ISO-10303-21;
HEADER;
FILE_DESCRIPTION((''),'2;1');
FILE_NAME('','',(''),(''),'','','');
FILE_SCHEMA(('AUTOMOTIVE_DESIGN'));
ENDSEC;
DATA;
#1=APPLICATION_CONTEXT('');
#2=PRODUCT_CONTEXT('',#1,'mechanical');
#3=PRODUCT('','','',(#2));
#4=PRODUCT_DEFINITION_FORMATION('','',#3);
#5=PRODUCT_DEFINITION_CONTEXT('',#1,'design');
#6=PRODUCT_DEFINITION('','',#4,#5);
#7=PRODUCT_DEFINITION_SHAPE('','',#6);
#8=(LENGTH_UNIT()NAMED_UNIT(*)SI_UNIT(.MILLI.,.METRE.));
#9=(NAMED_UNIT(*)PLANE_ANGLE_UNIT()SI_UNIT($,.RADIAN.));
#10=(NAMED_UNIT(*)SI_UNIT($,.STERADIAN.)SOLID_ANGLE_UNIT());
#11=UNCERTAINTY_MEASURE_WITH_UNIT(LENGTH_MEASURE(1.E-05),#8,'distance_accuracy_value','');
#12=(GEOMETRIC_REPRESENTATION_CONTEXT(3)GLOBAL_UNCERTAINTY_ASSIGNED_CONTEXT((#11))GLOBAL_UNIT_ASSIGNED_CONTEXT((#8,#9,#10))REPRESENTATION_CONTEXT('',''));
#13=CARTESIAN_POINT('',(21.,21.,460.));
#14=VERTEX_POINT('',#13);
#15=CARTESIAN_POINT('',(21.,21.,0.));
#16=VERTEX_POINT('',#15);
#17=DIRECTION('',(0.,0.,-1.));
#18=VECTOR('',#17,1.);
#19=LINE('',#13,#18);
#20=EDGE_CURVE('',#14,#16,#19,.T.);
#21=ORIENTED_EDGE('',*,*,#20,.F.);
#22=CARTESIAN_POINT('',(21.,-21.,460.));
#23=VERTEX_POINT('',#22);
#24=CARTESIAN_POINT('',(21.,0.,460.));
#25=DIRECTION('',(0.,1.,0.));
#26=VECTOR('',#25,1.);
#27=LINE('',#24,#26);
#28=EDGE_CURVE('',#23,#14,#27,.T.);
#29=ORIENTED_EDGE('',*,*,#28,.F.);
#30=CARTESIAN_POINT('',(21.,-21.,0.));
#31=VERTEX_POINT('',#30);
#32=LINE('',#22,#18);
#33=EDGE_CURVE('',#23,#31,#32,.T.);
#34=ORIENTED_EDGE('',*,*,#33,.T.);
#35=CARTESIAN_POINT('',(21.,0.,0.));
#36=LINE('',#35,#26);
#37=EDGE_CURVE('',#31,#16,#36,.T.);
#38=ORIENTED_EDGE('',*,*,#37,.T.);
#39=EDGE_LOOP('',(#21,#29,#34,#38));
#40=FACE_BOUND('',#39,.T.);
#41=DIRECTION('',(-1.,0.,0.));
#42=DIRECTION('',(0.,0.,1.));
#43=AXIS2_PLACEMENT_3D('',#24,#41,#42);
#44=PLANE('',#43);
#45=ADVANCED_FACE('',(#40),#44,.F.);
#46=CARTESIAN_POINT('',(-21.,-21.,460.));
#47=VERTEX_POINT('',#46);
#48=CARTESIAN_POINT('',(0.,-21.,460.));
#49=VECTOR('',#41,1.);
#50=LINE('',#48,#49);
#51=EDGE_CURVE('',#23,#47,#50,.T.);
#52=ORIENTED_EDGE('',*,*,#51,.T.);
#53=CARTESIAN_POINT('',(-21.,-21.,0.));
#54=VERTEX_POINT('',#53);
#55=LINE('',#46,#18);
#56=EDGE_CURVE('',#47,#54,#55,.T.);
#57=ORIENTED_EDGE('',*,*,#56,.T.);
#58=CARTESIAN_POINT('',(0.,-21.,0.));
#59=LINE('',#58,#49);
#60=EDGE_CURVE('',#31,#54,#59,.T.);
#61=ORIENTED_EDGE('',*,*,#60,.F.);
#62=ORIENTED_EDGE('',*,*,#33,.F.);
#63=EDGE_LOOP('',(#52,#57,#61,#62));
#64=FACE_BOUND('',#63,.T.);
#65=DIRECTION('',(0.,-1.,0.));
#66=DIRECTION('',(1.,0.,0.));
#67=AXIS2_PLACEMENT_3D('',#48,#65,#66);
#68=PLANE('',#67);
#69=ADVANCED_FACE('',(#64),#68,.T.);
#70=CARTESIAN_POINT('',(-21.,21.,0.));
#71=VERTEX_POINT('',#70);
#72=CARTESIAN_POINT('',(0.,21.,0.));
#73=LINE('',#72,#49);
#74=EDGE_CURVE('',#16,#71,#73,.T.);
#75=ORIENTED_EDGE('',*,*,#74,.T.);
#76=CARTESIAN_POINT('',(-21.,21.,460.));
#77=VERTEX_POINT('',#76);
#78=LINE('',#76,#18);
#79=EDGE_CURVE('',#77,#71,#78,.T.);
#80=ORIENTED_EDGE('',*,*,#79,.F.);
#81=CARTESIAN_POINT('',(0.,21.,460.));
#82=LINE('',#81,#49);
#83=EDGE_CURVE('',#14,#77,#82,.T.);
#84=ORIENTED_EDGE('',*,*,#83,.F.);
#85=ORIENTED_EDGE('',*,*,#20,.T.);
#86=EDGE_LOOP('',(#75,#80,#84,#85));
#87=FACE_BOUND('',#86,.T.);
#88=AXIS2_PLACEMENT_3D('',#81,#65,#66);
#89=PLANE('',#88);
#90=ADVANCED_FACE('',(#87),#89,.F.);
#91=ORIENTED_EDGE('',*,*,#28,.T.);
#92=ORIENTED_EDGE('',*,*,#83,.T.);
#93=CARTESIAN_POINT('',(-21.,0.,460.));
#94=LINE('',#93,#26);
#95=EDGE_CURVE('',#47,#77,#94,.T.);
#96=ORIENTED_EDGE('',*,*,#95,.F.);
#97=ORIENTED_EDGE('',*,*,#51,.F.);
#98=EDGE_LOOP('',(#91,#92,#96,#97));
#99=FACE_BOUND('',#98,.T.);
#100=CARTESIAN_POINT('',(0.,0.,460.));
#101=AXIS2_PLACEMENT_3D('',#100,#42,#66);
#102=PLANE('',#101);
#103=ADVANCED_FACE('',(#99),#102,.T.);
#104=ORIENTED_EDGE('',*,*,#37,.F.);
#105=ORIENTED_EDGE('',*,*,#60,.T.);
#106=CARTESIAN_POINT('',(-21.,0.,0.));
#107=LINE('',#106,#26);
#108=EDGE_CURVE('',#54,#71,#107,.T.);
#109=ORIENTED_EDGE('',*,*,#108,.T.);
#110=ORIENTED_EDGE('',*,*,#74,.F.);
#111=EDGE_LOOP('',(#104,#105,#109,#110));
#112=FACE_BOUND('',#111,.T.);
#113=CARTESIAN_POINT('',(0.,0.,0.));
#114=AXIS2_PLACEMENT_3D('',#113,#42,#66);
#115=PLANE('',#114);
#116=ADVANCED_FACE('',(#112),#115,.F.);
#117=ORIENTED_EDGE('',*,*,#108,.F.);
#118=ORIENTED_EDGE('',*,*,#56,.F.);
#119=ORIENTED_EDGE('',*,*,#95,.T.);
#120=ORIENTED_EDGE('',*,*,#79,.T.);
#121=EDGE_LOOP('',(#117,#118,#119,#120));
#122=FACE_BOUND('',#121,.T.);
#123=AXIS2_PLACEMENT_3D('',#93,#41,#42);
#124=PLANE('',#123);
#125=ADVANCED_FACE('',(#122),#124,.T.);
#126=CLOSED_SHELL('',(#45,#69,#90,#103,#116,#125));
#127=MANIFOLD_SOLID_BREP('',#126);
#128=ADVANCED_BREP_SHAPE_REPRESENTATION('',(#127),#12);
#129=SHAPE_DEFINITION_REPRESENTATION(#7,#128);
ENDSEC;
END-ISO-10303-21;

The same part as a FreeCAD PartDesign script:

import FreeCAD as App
import Part
import Sketcher
Q = App.Units.Quantity

doc = App.newDocument("Part")
body = doc.addObject("PartDesign::Body", "Body")

sketch1 = body.newObject("Sketcher::SketchObject", "Sketch")
sketch1.AttachmentSupport = (doc.getObject("XY_Plane"), [""])
sketch1.MapMode = "FlatFace"
sketch1.addGeometry(Part.LineSegment(App.Vector(-21, 21, 0), App.Vector(-21, -21, 0)), False)
sketch1.addGeometry(Part.LineSegment(App.Vector(-21, -21, 0), App.Vector(21, -21, 0)), False)
sketch1.addGeometry(Part.LineSegment(App.Vector(21, -21, 0), App.Vector(21, 21, 0)), False)
sketch1.addGeometry(Part.LineSegment(App.Vector(21, 21, 0), App.Vector(-21, 21, 0)), False)
sketch1.addConstraint(Sketcher.Constraint("Coincident", 0, 2, 1, 1))
sketch1.addConstraint(Sketcher.Constraint("Coincident", 1, 2, 2, 1))
sketch1.addConstraint(Sketcher.Constraint("Coincident", 2, 2, 3, 1))
sketch1.addConstraint(Sketcher.Constraint("Coincident", 3, 2, 0, 1))
sketch1.addConstraint(Sketcher.Constraint("Vertical", 0))
sketch1.addConstraint(Sketcher.Constraint("Horizontal", 1))
sketch1.addConstraint(Sketcher.Constraint("Vertical", 2))
sketch1.addConstraint(Sketcher.Constraint("Horizontal", 3))
sketch1.addConstraint(Sketcher.Constraint("Symmetric", 0, 2, 2, 2, -1, 1))
sketch1.addConstraint(Sketcher.Constraint("Equal", 3, 0))
sketch1.addConstraint(Sketcher.Constraint("DistanceX", 1, 1, 1, 2, Q("42 mm")))
pad1 = body.newObject("PartDesign::Pad", "Pad")
pad1.Profile = sketch1
pad1.Length = 460

doc.recompute()
